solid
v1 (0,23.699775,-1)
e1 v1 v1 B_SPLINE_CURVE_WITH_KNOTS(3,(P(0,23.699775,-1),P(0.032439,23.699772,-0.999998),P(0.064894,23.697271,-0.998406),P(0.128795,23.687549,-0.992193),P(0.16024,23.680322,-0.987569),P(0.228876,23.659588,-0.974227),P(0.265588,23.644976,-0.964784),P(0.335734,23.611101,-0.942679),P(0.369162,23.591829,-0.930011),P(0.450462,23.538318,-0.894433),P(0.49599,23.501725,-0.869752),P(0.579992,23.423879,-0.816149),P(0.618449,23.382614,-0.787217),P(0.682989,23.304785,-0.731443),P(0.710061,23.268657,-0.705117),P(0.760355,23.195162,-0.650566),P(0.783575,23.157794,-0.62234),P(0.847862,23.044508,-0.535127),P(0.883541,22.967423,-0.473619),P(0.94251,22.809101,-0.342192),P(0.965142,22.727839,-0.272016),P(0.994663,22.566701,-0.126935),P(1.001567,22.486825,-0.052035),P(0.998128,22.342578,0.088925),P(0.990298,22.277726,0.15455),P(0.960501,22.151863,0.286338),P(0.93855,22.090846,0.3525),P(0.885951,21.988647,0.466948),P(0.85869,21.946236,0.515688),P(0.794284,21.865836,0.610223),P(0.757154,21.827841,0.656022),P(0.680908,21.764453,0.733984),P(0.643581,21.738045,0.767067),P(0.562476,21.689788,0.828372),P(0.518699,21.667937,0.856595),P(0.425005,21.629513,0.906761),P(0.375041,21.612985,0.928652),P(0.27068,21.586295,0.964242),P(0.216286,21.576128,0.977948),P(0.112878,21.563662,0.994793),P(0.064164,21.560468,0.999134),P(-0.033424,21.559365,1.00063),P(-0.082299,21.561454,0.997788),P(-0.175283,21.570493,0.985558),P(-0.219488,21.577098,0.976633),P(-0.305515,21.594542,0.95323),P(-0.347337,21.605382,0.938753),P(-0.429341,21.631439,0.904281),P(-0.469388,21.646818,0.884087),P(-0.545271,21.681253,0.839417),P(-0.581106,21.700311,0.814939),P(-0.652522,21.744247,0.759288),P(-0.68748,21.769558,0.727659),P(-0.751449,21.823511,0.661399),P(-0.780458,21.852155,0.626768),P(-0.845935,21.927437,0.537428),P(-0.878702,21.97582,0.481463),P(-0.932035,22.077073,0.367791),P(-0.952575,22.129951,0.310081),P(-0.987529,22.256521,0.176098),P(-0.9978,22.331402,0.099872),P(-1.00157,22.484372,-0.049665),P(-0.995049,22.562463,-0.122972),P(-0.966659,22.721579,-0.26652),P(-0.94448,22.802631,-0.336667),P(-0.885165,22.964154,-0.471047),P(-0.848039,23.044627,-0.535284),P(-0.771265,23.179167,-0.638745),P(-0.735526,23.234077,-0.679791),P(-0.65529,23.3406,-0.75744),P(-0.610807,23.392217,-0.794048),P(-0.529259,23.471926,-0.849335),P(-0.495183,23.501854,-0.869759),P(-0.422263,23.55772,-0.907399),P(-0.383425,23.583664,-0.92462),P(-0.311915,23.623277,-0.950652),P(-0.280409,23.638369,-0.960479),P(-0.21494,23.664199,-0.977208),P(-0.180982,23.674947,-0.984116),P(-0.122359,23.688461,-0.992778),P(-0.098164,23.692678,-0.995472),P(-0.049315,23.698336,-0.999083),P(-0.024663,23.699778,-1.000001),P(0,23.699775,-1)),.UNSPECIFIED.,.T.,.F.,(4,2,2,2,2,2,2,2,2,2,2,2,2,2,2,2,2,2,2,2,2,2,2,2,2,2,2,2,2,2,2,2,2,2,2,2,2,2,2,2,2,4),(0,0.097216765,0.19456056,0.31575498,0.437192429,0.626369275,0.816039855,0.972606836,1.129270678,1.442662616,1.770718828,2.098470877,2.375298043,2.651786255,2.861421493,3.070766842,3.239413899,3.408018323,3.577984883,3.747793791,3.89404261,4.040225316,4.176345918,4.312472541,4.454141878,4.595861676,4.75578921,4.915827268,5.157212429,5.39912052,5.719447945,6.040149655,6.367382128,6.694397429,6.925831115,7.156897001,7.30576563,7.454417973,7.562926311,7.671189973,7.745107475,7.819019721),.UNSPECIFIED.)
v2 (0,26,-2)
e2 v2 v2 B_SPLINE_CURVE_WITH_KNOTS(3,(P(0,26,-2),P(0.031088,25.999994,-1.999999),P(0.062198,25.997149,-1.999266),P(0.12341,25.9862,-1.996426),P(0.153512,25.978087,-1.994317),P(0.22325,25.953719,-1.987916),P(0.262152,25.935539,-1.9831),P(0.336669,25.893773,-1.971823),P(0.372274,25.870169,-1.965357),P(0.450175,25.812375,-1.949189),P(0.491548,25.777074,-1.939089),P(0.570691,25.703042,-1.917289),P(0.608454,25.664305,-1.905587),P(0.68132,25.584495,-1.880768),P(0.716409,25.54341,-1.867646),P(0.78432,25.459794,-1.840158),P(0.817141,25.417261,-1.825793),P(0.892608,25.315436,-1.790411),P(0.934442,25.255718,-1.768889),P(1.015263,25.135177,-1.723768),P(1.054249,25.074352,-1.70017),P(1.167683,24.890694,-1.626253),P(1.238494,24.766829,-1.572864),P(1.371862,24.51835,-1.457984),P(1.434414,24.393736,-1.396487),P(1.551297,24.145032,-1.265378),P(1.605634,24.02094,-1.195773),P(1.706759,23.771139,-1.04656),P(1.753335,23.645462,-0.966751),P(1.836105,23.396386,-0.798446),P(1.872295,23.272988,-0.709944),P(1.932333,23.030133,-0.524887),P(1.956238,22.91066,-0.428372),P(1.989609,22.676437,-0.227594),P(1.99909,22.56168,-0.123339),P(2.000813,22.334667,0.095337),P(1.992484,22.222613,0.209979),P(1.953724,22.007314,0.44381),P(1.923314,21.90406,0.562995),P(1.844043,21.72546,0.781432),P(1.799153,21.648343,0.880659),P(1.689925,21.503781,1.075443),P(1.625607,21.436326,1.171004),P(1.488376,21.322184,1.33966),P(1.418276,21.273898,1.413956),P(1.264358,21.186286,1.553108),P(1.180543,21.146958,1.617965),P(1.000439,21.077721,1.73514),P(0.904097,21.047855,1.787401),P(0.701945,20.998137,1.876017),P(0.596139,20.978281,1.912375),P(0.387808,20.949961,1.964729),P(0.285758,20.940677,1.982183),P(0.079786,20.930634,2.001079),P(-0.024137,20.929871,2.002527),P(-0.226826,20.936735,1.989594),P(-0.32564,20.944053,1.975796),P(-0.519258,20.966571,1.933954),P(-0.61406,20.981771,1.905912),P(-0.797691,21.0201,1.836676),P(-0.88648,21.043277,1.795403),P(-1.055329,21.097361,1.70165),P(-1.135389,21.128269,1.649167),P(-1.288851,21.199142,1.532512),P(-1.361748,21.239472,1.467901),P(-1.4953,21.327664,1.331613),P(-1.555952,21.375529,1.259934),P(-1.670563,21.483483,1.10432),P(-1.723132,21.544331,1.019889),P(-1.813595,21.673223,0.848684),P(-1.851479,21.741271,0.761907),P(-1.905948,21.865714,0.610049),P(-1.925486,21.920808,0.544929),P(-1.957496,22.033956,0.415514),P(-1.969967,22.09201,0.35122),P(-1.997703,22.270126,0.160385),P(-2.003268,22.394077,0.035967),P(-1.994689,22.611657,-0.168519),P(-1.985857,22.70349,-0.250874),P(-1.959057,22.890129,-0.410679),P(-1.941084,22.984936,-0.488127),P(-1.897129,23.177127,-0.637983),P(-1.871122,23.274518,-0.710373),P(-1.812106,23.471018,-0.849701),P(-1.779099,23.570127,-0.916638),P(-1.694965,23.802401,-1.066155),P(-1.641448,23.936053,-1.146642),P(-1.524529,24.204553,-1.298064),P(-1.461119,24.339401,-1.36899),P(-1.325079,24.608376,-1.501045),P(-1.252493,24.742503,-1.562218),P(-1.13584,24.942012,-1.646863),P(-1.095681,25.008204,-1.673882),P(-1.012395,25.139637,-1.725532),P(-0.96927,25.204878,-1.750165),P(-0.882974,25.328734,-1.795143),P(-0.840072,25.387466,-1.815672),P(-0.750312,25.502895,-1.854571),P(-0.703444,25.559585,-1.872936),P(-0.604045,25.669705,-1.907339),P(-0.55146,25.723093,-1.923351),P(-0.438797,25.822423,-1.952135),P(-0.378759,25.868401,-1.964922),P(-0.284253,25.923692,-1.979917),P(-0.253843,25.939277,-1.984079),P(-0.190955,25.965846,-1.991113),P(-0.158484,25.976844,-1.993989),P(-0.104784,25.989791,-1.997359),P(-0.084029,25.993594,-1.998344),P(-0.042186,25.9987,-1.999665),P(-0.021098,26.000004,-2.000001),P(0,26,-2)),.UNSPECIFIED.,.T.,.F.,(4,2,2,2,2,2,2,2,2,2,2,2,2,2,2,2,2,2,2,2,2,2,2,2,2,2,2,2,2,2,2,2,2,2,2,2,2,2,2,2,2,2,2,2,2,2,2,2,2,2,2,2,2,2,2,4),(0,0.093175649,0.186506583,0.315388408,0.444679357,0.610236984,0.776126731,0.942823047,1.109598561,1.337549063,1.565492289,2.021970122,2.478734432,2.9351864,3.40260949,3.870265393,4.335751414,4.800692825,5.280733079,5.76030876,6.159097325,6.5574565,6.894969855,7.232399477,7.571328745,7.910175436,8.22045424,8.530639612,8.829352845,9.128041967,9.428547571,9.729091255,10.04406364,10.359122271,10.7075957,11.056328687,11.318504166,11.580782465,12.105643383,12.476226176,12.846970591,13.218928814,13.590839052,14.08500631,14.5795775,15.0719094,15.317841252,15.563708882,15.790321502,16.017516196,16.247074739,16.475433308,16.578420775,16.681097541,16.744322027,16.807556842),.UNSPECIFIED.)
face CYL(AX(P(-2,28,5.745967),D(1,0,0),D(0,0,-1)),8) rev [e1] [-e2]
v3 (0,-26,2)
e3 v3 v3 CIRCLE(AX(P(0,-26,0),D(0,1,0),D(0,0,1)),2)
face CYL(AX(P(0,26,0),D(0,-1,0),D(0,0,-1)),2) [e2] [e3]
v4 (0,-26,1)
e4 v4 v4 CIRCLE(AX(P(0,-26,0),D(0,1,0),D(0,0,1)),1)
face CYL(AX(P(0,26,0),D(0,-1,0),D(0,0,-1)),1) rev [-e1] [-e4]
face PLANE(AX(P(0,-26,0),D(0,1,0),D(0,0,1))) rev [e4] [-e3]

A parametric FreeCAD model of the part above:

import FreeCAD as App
import Part
import Sketcher

doc = App.newDocument("Part")
params = doc.addObject("Spreadsheet::Sheet", "Params")
for row, (alias, value) in enumerate([
    ("sketch1_diameter", "4 mm"),
    ("sketch1_diameter2", "2 mm"),
    ("pad1_length", "52 mm"),
    ("sketch2_diameter", "16 mm"),
    ("pocket1_length", "4 mm"),
], start=1):
    params.set(f"A{row}", alias)
    params.set(f"B{row}", "=" + value)
    params.setAlias(f"B{row}", alias)

body = doc.addObject("PartDesign::Body", "Body")

# Sketch on XZ plane
sketch1 = body.newObject("Sketcher::SketchObject", "Sketch")
sketch1.AttachmentSupport = (doc.getObject("XZ_Plane"), [""])
sketch1.MapMode = "FlatFace"
sketch1.addGeometry([
    Part.Circle(App.Vector(0, 0, 0), App.Vector(0, 0, 1), 2),
    Part.Circle(App.Vector(0, 0, 0), App.Vector(0, 0, 1), 1),
], False)
sketch1.addConstraint([
    Sketcher.Constraint("Coincident", 0, 3, -1, 1),
    Sketcher.Constraint("Coincident", 1, 3, -1, 1),
    Sketcher.Constraint("Diameter", 0, 4.0),
    Sketcher.Constraint("Diameter", 1, 2.0),
])
sketch1.setExpression("Constraints[2]", "Params.sketch1_diameter")
sketch1.setExpression("Constraints[3]", "Params.sketch1_diameter2")
pad1 = body.newObject("PartDesign::Pad", "Pad")
pad1.Profile = sketch1
pad1.setExpression("Length", "Params.pad1_length")
pad1.Midplane = True

# Sketch on YZ plane
sketch2 = body.newObject("Sketcher::SketchObject", "Sketch001")
sketch2.AttachmentSupport = (doc.getObject("YZ_Plane"), [""])
sketch2.MapMode = "FlatFace"
sketch2.addGeometry(Part.Circle(App.Vector(28, 6, 0), App.Vector(0, 0, 1), 8), False)
sketch2.addConstraint([
    Sketcher.Constraint("Diameter", 0, 16.0),
    Sketcher.Constraint("DistanceX", -1, 1, 0, 3, 28.0),
    Sketcher.Constraint("DistanceY", -1, 1, 0, 3, 5.745967),
])
sketch2.setExpression("Constraints[0]", "Params.sketch2_diameter")
pocket1 = body.newObject("PartDesign::Pocket", "Pocket")
pocket1.Profile = sketch2
pocket1.setExpression("Length", "Params.pocket1_length")
pocket1.Midplane = True

doc.recompute()
